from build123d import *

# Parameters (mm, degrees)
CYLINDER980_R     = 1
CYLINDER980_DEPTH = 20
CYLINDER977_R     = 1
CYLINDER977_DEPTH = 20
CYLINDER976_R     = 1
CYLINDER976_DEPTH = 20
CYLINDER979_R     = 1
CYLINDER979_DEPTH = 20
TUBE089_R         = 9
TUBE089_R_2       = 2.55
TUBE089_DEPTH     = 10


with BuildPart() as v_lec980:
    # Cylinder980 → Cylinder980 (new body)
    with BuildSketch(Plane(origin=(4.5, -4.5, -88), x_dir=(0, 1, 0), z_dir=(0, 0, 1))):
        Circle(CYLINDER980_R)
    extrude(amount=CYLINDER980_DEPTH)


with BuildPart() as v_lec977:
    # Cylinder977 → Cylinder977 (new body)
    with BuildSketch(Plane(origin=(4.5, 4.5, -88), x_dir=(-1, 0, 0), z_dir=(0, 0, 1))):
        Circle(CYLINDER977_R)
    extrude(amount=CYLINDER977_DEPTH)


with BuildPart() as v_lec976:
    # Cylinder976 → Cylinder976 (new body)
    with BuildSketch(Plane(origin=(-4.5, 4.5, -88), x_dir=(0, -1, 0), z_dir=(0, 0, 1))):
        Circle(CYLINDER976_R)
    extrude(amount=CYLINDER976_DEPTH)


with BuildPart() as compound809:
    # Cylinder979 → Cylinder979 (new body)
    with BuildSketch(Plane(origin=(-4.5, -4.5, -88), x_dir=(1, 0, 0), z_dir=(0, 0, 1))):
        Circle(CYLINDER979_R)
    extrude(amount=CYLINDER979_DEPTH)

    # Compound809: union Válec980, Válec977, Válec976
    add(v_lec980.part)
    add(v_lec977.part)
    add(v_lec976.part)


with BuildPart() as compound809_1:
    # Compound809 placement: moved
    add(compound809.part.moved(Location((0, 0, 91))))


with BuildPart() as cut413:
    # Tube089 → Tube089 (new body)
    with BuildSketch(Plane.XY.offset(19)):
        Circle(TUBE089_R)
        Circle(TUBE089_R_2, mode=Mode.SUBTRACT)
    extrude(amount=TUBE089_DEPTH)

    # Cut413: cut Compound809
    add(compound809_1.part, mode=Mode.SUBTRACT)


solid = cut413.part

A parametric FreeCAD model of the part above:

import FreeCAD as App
import Part
import Sketcher

V = App.Vector

doc = App.newDocument("Part")
body = doc.addObject("PartDesign::Body", "Body")

# Sketch on XY plane
sketch1 = body.newObject("Sketcher::SketchObject", "Sketch")
sketch1.AttachmentSupport = (doc.getObject("XY_Plane"), [""])
sketch1.MapMode = "FlatFace"
sketch1.AttachmentOffset = App.Placement(V(0, 0, -88), App.Rotation())
sketch1.addGeometry(Part.Circle(V(4.5, -4.5, 0), V(0, 0, 1), 1), False)
sketch1.addConstraint(Sketcher.Constraint("Diameter", 0, 2.0))
sketch1.addConstraint(Sketcher.Constraint("DistanceX", -1, 1, 0, 3, 4.5))
sketch1.addConstraint(Sketcher.Constraint("DistanceY", 0, 3, -1, 1, 4.5))
pad1 = body.newObject("PartDesign::Pad", "Pad")
pad1.Profile = sketch1
pad1.Length = 20
body2 = doc.addObject("PartDesign::Body", "Body001")

# Sketch on XY plane
sketch2 = body2.newObject("Sketcher::SketchObject", "Sketch001")
sketch2.AttachmentSupport = (doc.getObject("XY_Plane001"), [""])
sketch2.MapMode = "FlatFace"
sketch2.AttachmentOffset = App.Placement(V(0, 0, -88), App.Rotation())
sketch2.addGeometry(Part.Circle(V(4.5, 4.5, 0), V(0, 0, 1), 1), False)
sketch2.addConstraint(Sketcher.Constraint("Diameter", 0, 2.0))
sketch2.addConstraint(Sketcher.Constraint("DistanceX", -1, 1, 0, 3, 4.5))
sketch2.addConstraint(Sketcher.Constraint("DistanceY", -1, 1, 0, 3, 4.5))
pad2 = body2.newObject("PartDesign::Pad", "Pad001")
pad2.Profile = sketch2
pad2.Length = 20
body3 = doc.addObject("PartDesign::Body", "Body002")

# Sketch on XY plane
sketch3 = body3.newObject("Sketcher::SketchObject", "Sketch002")
sketch3.AttachmentSupport = (doc.getObject("XY_Plane002"), [""])
sketch3.MapMode = "FlatFace"
sketch3.AttachmentOffset = App.Placement(V(0, 0, -88), App.Rotation())
sketch3.addGeometry(Part.Circle(V(-4.5, 4.5, 0), V(0, 0, 1), 1), False)
sketch3.addConstraint(Sketcher.Constraint("Diameter", 0, 2.0))
sketch3.addConstraint(Sketcher.Constraint("DistanceX", 0, 3, -1, 1, 4.5))
sketch3.addConstraint(Sketcher.Constraint("DistanceY", -1, 1, 0, 3, 4.5))
pad3 = body3.newObject("PartDesign::Pad", "Pad002")
pad3.Profile = sketch3
pad3.Length = 20
body4 = doc.addObject("PartDesign::Body", "Body003")
body4.AllowCompound = True

# Sketch on XY plane
sketch4 = body4.newObject("Sketcher::SketchObject", "Sketch003")
sketch4.AttachmentSupport = (doc.getObject("XY_Plane003"), [""])
sketch4.MapMode = "FlatFace"
sketch4.AttachmentOffset = App.Placement(V(0, 0, -88), App.Rotation())
sketch4.addGeometry(Part.Circle(V(-4.5, -4.5, 0), V(0, 0, 1), 1), False)
sketch4.addConstraint(Sketcher.Constraint("Diameter", 0, 2.0))
sketch4.addConstraint(Sketcher.Constraint("DistanceX", 0, 3, -1, 1, 4.5))
sketch4.addConstraint(Sketcher.Constraint("DistanceY", 0, 3, -1, 1, 4.5))
pad4 = body4.newObject("PartDesign::Pad", "Pad003")
pad4.Profile = sketch4
pad4.Length = 20
doc.recompute()

boolean = body4.newObject("PartDesign::Boolean", "Boolean")
boolean.Type = "Fuse"
boolean.addObjects([body])
doc.recompute()

boolean2 = body4.newObject("PartDesign::Boolean", "Boolean001")
boolean2.Type = "Fuse"
boolean2.addObjects([body2])
doc.recompute()

boolean3 = body4.newObject("PartDesign::Boolean", "Boolean002")
boolean3.Type = "Fuse"
boolean3.addObjects([body3])
body5 = doc.addObject("PartDesign::Body", "Body004")
body5.AllowCompound = True
doc.recompute()

body4.Placement = App.Placement(V(0, 0, 91), App.Rotation(V(0, 0, 1), 0))
boolean4 = body5.newObject("PartDesign::Boolean", "Boolean003")
boolean4.Type = "Fuse"
boolean4.addObjects([body4])
body6 = doc.addObject("PartDesign::Body", "Body005")

# Sketch on XY plane
sketch5 = body6.newObject("Sketcher::SketchObject", "Sketch004")
sketch5.AttachmentSupport = (doc.getObject("XY_Plane005"), [""])
sketch5.MapMode = "FlatFace"
sketch5.AttachmentOffset = App.Placement(V(0, 0, 19), App.Rotation())
sketch5.addGeometry(Part.Circle(V(0, 0, 0), V(0, 0, 1), 9), False)
sketch5.addGeometry(Part.Circle(V(0, 0, 0), V(0, 0, 1), 2.55), False)
sketch5.addConstraint(Sketcher.Constraint("Coincident", 0, 3, -1, 1))
sketch5.addConstraint(Sketcher.Constraint("Coincident", 1, 3, -1, 1))
sketch5.addConstraint(Sketcher.Constraint("Diameter", 0, 18.0))
sketch5.addConstraint(Sketcher.Constraint("Diameter", 1, 5.1))
pad5 = body6.newObject("PartDesign::Pad", "Pad004")
pad5.Profile = sketch5
pad5.Length = 10
doc.recompute()

boolean5 = body6.newObject("PartDesign::Boolean", "Boolean004")
boolean5.Type = "Cut"
boolean5.addObjects([body5])

doc.recompute()
